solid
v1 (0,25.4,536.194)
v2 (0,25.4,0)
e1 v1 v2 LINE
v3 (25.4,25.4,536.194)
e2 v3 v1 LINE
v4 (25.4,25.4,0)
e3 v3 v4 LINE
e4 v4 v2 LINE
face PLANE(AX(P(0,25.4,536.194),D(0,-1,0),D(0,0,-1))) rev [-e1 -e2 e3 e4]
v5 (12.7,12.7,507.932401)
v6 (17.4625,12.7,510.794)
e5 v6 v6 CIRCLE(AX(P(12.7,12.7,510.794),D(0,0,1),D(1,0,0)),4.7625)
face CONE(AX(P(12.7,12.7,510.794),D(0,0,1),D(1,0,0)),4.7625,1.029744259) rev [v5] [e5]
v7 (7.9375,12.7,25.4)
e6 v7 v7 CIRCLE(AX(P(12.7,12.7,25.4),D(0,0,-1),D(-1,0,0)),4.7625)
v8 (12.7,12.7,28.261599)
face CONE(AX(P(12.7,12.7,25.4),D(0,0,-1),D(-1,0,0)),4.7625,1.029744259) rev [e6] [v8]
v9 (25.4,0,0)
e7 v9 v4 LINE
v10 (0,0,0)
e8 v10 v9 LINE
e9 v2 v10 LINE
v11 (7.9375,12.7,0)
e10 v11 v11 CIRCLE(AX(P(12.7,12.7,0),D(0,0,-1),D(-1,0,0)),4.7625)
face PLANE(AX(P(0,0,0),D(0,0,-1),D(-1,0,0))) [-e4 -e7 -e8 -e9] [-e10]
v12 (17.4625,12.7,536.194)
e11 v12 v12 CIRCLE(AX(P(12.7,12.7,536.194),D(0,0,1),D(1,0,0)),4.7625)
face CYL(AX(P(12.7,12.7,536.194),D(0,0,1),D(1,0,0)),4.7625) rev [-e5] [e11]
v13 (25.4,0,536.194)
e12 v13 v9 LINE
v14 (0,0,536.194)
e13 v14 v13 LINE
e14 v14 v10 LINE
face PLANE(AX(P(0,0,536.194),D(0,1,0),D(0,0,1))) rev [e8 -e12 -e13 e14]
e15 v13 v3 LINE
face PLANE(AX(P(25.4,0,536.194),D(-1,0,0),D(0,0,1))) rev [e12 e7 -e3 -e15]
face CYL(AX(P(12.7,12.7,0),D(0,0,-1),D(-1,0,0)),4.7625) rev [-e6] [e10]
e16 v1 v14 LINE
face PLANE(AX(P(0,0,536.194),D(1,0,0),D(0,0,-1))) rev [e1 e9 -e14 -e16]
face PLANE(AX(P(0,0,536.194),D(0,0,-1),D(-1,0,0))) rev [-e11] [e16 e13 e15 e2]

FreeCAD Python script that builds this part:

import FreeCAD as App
import Part
import Sketcher

V = App.Vector
Q = App.Units.Quantity

doc = App.newDocument("Part")
params = doc.addObject("Spreadsheet::Sheet", "Params")
for row, (alias, value) in enumerate([
    ("sketch1_width", "1 in"),
    ("pad1_length", "21.11 in"),
    ("sketch2_diameter", "0.375 in"),
    ("hole_diameter", "0.375 in"),
    ("hole_depth", "1 in"),
    ("sketch3_diameter", "0.375 in"),
    ("hole2_diameter", "0.375 in"),
    ("hole2_depth", "1 in"),
], start=1):
    params.set(f"A{row}", alias)
    params.set(f"B{row}", "=" + value)
    params.setAlias(f"B{row}", alias)

body = doc.addObject("PartDesign::Body", "Body")

sketch1 = body.newObject("Sketcher::SketchObject", "Sketch")
sketch1.AttachmentSupport = (doc.getObject("XY_Plane"), [""])
sketch1.MapMode = "FlatFace"
sketch1.addGeometry([
    Part.LineSegment(V(0, 25.4, 0), V(0, 0, 0)),
    Part.LineSegment(V(0, 0, 0), V(25.4, 0, 0)),
    Part.LineSegment(V(25.4, 0, 0), V(25.4, 25.4, 0)),
    Part.LineSegment(V(25.4, 25.4, 0), V(0, 25.4, 0)),
], False)
sketch1.addConstraint([
    Sketcher.Constraint("Coincident", 0, 2, 1, 1),
    Sketcher.Constraint("Coincident", 1, 2, 2, 1),
    Sketcher.Constraint("Coincident", 2, 2, 3, 1),
    Sketcher.Constraint("Coincident", 3, 2, 0, 1),
    Sketcher.Constraint("Vertical", 0),
    Sketcher.Constraint("Horizontal", 1),
    Sketcher.Constraint("Vertical", 2),
    Sketcher.Constraint("Horizontal", 3),
    Sketcher.Constraint("Coincident", 0, 2, -1, 1),
    Sketcher.Constraint("Equal", 3, 0),
    Sketcher.Constraint("DistanceX", 1, 1, 1, 2, Q("1 in")),
])
sketch1.setExpression("Constraints[10]", "Params.sketch1_width")
pad1 = body.newObject("PartDesign::Pad", "Pad")
pad1.Profile = sketch1
pad1.setExpression("Length", "Params.pad1_length")

sketch2 = body.newObject("Sketcher::SketchObject", "Sketch001")
sketch2.AttachmentSupport = (doc.getObject("XY_Plane"), [""])
sketch2.MapMode = "FlatFace"
sketch2.addGeometry(Part.Circle(V(12.7, 12.7, 0), V(0, 0, 1), 4.7625), False)
sketch2.addConstraint([
    Sketcher.Constraint("Diameter", 0, Q("0.375 in")),
    Sketcher.Constraint("DistanceX", -1, 1, 0, 3, Q("0.5 in")),
    Sketcher.Constraint("DistanceY", -1, 1, 0, 3, Q("0.5 in")),
])
sketch2.setExpression("Constraints[0]", "Params.sketch2_diameter")
doc.recompute()
hole = body.newObject("PartDesign::Hole", "Hole")
hole.Profile = sketch2
hole.ThreadType = "None"
hole.setExpression("Diameter", "Params.hole_diameter")
hole.DepthType = "Dimension"
hole.setExpression("Depth", "Params.hole_depth")
hole.DrillPoint = "Angled"
hole.DrillPointAngle = 118
hole.Reversed = True

sketch3 = body.newObject("Sketcher::SketchObject", "Sketch002")
sketch3.AttachmentSupport = (doc.getObject("XY_Plane"), [""])
sketch3.MapMode = "FlatFace"
sketch3.AttachmentOffset = App.Placement(V(0, 0, 21.11 * 25.4), App.Rotation())
sketch3.addGeometry(Part.Circle(V(12.7, 12.7, 0), V(0, 0, 1), 4.7625), False)
sketch3.addConstraint([
    Sketcher.Constraint("Diameter", 0, Q("0.375 in")),
    Sketcher.Constraint("DistanceX", -1, 1, 0, 3, Q("0.5 in")),
    Sketcher.Constraint("DistanceY", -1, 1, 0, 3, Q("0.5 in")),
])
sketch3.setExpression("Constraints[0]", "Params.sketch3_diameter")
doc.recompute()
hole2 = body.newObject("PartDesign::Hole", "Hole001")
hole2.Profile = sketch3
hole2.ThreadType = "None"
hole2.setExpression("Diameter", "Params.hole2_diameter")
hole2.DepthType = "Dimension"
hole2.setExpression("Depth", "Params.hole2_depth")
hole2.DrillPoint = "Angled"
hole2.DrillPointAngle = 118

doc.recompute()
